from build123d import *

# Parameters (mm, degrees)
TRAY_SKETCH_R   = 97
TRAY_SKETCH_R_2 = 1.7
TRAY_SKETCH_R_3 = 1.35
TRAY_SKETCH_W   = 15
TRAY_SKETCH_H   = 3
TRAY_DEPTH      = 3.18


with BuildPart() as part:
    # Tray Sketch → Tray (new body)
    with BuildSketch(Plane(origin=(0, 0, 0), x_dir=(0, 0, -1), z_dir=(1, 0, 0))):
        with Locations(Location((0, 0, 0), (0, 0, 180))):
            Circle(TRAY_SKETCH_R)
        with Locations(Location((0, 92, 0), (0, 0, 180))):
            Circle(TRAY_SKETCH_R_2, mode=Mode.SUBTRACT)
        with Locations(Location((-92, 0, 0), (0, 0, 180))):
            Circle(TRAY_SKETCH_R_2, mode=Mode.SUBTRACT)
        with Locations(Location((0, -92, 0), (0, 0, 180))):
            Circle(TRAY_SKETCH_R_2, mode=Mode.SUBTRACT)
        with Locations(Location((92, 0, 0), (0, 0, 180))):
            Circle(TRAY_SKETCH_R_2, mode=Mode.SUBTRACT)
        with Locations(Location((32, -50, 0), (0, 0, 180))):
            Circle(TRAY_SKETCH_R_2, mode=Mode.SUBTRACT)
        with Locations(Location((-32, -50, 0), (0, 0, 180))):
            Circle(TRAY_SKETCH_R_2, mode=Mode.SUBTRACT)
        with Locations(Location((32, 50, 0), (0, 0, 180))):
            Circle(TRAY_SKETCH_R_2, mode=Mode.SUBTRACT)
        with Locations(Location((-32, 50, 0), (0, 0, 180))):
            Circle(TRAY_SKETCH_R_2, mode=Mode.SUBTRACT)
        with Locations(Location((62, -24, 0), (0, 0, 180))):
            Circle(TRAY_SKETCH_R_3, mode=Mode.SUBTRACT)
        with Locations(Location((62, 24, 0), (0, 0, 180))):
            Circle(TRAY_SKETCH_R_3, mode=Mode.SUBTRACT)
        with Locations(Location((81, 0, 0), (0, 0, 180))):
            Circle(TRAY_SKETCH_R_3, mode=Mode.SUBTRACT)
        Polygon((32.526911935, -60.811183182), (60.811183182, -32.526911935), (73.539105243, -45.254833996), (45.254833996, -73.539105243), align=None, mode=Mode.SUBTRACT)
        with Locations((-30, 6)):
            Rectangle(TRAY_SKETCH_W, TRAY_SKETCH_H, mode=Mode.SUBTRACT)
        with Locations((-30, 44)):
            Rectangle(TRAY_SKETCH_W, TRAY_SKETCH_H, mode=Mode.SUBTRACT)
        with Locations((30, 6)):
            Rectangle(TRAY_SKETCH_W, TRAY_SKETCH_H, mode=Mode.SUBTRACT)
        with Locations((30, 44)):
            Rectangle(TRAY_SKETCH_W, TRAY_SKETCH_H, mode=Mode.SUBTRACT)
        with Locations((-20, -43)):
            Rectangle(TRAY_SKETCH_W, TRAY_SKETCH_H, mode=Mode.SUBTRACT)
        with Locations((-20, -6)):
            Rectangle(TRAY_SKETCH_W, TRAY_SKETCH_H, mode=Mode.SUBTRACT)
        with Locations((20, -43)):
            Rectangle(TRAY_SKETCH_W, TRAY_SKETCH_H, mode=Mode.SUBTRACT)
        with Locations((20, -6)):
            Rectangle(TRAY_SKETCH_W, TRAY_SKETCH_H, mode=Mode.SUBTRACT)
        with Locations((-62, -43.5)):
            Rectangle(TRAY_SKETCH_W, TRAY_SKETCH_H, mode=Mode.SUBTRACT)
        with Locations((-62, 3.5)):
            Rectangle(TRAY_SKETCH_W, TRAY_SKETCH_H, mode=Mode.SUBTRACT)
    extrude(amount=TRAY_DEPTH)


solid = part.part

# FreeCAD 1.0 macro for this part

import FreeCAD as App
import Part
import Sketcher
Q = App.Units.Quantity

doc = App.newDocument("Part")
body = doc.addObject("PartDesign::Body", "Body")

# Sketch on YZ plane
sketch1 = body.newObject("Sketcher::SketchObject", "Sketch")
sketch1.AttachmentSupport = (doc.getObject("YZ_Plane"), [""])
sketch1.MapMode = "FlatFace"
sketch1.addGeometry([
    Part.Circle(App.Vector(0, 0, 0), App.Vector(0, 0, 1), 97),  # 0
    Part.Circle(App.Vector(50, -32, 0), App.Vector(0, 0, 1), 1.7),  # 1
    Part.Circle(App.Vector(24, -62, 0), App.Vector(0, 0, 1), 1.4),  # 2
    Part.Circle(App.Vector(0, -92, 0), App.Vector(0, 0, 1), 1.7),  # 3
    Part.Circle(App.Vector(0, -81, 0), App.Vector(0, 0, 1), 1.4),  # 4
    Part.LineSegment(App.Vector(42.5, -37.5, 0), App.Vector(42.5, -22.5, 0)),  # 5
    Part.LineSegment(App.Vector(42.5, -22.5, 0), App.Vector(45.5, -22.5, 0)),  # 6
    Part.LineSegment(App.Vector(45.5, -22.5, 0), App.Vector(45.5, -37.5, 0)),  # 7
    Part.LineSegment(App.Vector(45.5, -37.5, 0), App.Vector(42.5, -37.5, 0)),  # 8
    Part.LineSegment(App.Vector(4.5, -37.5, 0), App.Vector(4.5, -22.5, 0)),  # 9
    Part.LineSegment(App.Vector(4.5, -22.5, 0), App.Vector(7.5, -22.5, 0)),  # 10
    Part.LineSegment(App.Vector(7.5, -22.5, 0), App.Vector(7.5, -37.5, 0)),  # 11
    Part.LineSegment(App.Vector(7.5, -37.5, 0), App.Vector(4.5, -37.5, 0)),  # 12
    Part.Circle(App.Vector(92, 0, 0), App.Vector(0, 0, 1), 1.7),  # 13
    Part.Circle(App.Vector(50, 32, 0), App.Vector(0, 0, 1), 1.7),  # 14
    Part.LineSegment(App.Vector(42.5, 22.5, 0), App.Vector(42.5, 37.5, 0)),  # 15
    Part.LineSegment(App.Vector(42.5, 37.5, 0), App.Vector(45.5, 37.5, 0)),  # 16
    Part.LineSegment(App.Vector(45.5, 37.5, 0), App.Vector(45.5, 22.5, 0)),  # 17
    Part.LineSegment(App.Vector(45.5, 22.5, 0), App.Vector(42.5, 22.5, 0)),  # 18
    Part.LineSegment(App.Vector(4.5, 22.5, 0), App.Vector(4.5, 37.5, 0)),  # 19
    Part.LineSegment(App.Vector(4.5, 37.5, 0), App.Vector(7.5, 37.5, 0)),  # 20
    Part.LineSegment(App.Vector(7.5, 37.5, 0), App.Vector(7.5, 22.5, 0)),  # 21
    Part.LineSegment(App.Vector(7.5, 22.5, 0), App.Vector(4.5, 22.5, 0)),  # 22
    Part.LineSegment(App.Vector(2, 54.5, 0), App.Vector(2, 69.5, 0)),  # 23
    Part.LineSegment(App.Vector(2, 69.5, 0), App.Vector(5, 69.5, 0)),  # 24
    Part.LineSegment(App.Vector(5, 69.5, 0), App.Vector(5, 54.5, 0)),  # 25
    Part.LineSegment(App.Vector(5, 54.5, 0), App.Vector(2, 54.5, 0)),  # 26
    Part.Circle(App.Vector(-24, -62, 0), App.Vector(0, 0, 1), 1.4),  # 27
    Part.LineSegment(App.Vector(-7.5, -27.5, 0), App.Vector(-7.5, -12.5, 0)),  # 28
    Part.LineSegment(App.Vector(-7.5, -12.5, 0), App.Vector(-4.5, -12.5, 0)),  # 29
    Part.LineSegment(App.Vector(-4.5, -12.5, 0), App.Vector(-4.5, -27.5, 0)),  # 30
    Part.LineSegment(App.Vector(-4.5, -27.5, 0), App.Vector(-7.5, -27.5, 0)),  # 31
    Part.LineSegment(App.Vector(-44.5, -27.5, 0), App.Vector(-44.5, -12.5, 0)),  # 32
    Part.LineSegment(App.Vector(-44.5, -12.5, 0), App.Vector(-41.5, -12.5, 0)),  # 33
    Part.LineSegment(App.Vector(-41.5, -12.5, 0), App.Vector(-41.5, -27.5, 0)),  # 34
    Part.LineSegment(App.Vector(-41.5, -27.5, 0), App.Vector(-44.5, -27.5, 0)),  # 35
    Part.LineSegment(App.Vector(-73.5, -45.3, 0), App.Vector(-60.8, -32.5, 0)),  # 36
    Part.LineSegment(App.Vector(-60.8, -32.5, 0), App.Vector(-32.5, -60.8, 0)),  # 37
    Part.LineSegment(App.Vector(-32.5, -60.8, 0), App.Vector(-45.3, -73.5, 0)),  # 38
    Part.LineSegment(App.Vector(-45.3, -73.5, 0), App.Vector(-73.5, -45.3, 0)),  # 39
    Part.Circle(App.Vector(-50, -32, 0), App.Vector(0, 0, 1), 1.7),  # 40
    Part.LineSegment(App.Vector(-7.5, 12.5, 0), App.Vector(-7.5, 27.5, 0)),  # 41
    Part.LineSegment(App.Vector(-7.5, 27.5, 0), App.Vector(-4.5, 27.5, 0)),  # 42
    Part.LineSegment(App.Vector(-4.5, 27.5, 0), App.Vector(-4.5, 12.5, 0)),  # 43
    Part.LineSegment(App.Vector(-4.5, 12.5, 0), App.Vector(-7.5, 12.5, 0)),  # 44
    Part.LineSegment(App.Vector(-44.5, 12.5, 0), App.Vector(-44.5, 27.5, 0)),  # 45
    Part.LineSegment(App.Vector(-44.5, 27.5, 0), App.Vector(-41.5, 27.5, 0)),  # 46
    Part.LineSegment(App.Vector(-41.5, 27.5, 0), App.Vector(-41.5, 12.5, 0)),  # 47
    Part.LineSegment(App.Vector(-41.5, 12.5, 0), App.Vector(-44.5, 12.5, 0)),  # 48
    Part.Circle(App.Vector(0, 92, 0), App.Vector(0, 0, 1), 1.7),  # 49
    Part.LineSegment(App.Vector(-45, 54.5, 0), App.Vector(-45, 69.5, 0)),  # 50
    Part.LineSegment(App.Vector(-45, 69.5, 0), App.Vector(-42, 69.5, 0)),  # 51
    Part.LineSegment(App.Vector(-42, 69.5, 0), App.Vector(-42, 54.5, 0)),  # 52
    Part.LineSegment(App.Vector(-42, 54.5, 0), App.Vector(-45, 54.5, 0)),  # 53
    Part.Circle(App.Vector(-50, 32, 0), App.Vector(0, 0, 1), 1.7),  # 54
    Part.Circle(App.Vector(-92, 0, 0), App.Vector(0, 0, 1), 1.7),  # 55
], False)
sketch1.addConstraint([
    Sketcher.Constraint("Coincident", 5, 2, 6, 1),
    Sketcher.Constraint("Coincident", 6, 2, 7, 1),
    Sketcher.Constraint("Coincident", 7, 2, 8, 1),
    Sketcher.Constraint("Coincident", 8, 2, 5, 1),
    Sketcher.Constraint("Coincident", 9, 2, 10, 1),
    Sketcher.Constraint("Coincident", 10, 2, 11, 1),
    Sketcher.Constraint("Coincident", 11, 2, 12, 1),
    Sketcher.Constraint("Coincident", 12, 2, 9, 1),
    Sketcher.Constraint("Coincident", 15, 2, 16, 1),
    Sketcher.Constraint("Coincident", 16, 2, 17, 1),
    Sketcher.Constraint("Coincident", 17, 2, 18, 1),
    Sketcher.Constraint("Coincident", 18, 2, 15, 1),
    Sketcher.Constraint("Coincident", 19, 2, 20, 1),
    Sketcher.Constraint("Coincident", 20, 2, 21, 1),
    Sketcher.Constraint("Coincident", 21, 2, 22, 1),
    Sketcher.Constraint("Coincident", 22, 2, 19, 1),
    Sketcher.Constraint("Coincident", 23, 2, 24, 1),
    Sketcher.Constraint("Coincident", 24, 2, 25, 1),
    Sketcher.Constraint("Coincident", 25, 2, 26, 1),
    Sketcher.Constraint("Coincident", 26, 2, 23, 1),
    Sketcher.Constraint("Coincident", 28, 2, 29, 1),
    Sketcher.Constraint("Coincident", 29, 2, 30, 1),
    Sketcher.Constraint("Coincident", 30, 2, 31, 1),
    Sketcher.Constraint("Coincident", 31, 2, 28, 1),
    Sketcher.Constraint("Coincident", 32, 2, 33, 1),
    Sketcher.Constraint("Coincident", 33, 2, 34, 1),
    Sketcher.Constraint("Coincident", 34, 2, 35, 1),
    Sketcher.Constraint("Coincident", 35, 2, 32, 1),
    Sketcher.Constraint("Coincident", 36, 2, 37, 1),
    Sketcher.Constraint("Coincident", 37, 2, 38, 1),
    Sketcher.Constraint("Coincident", 38, 2, 39, 1),
    Sketcher.Constraint("Coincident", 39, 2, 36, 1),
    Sketcher.Constraint("Coincident", 41, 2, 42, 1),
    Sketcher.Constraint("Coincident", 42, 2, 43, 1),
    Sketcher.Constraint("Coincident", 43, 2, 44, 1),
    Sketcher.Constraint("Coincident", 44, 2, 41, 1),
    Sketcher.Constraint("Coincident", 45, 2, 46, 1),
    Sketcher.Constraint("Coincident", 46, 2, 47, 1),
    Sketcher.Constraint("Coincident", 47, 2, 48, 1),
    Sketcher.Constraint("Coincident", 48, 2, 45, 1),
    Sketcher.Constraint("Coincident", 50, 2, 51, 1),
    Sketcher.Constraint("Coincident", 51, 2, 52, 1),
    Sketcher.Constraint("Coincident", 52, 2, 53, 1),
    Sketcher.Constraint("Coincident", 53, 2, 50, 1),
    Sketcher.Constraint("Vertical", 5),
    Sketcher.Constraint("Horizontal", 6),
    Sketcher.Constraint("Vertical", 7),
    Sketcher.Constraint("Horizontal", 8),
    Sketcher.Constraint("Vertical", 9),
    Sketcher.Constraint("Horizontal", 10),
    Sketcher.Constraint("Vertical", 11),
    Sketcher.Constraint("Horizontal", 12),
    Sketcher.Constraint("Vertical", 15),
    Sketcher.Constraint("Horizontal", 16),
    Sketcher.Constraint("Vertical", 17),
    Sketcher.Constraint("Horizontal", 18),
    Sketcher.Constraint("Vertical", 19),
    Sketcher.Constraint("Horizontal", 20),
    Sketcher.Constraint("Vertical", 21),
    Sketcher.Constraint("Horizontal", 22),
    Sketcher.Constraint("Vertical", 23),
    Sketcher.Constraint("Horizontal", 24),
    Sketcher.Constraint("Vertical", 25),
    Sketcher.Constraint("Horizontal", 26),
    Sketcher.Constraint("Vertical", 28),
    Sketcher.Constraint("Horizontal", 29),
    Sketcher.Constraint("Vertical", 30),
    Sketcher.Constraint("Horizontal", 31),
    Sketcher.Constraint("Vertical", 32),
    Sketcher.Constraint("Horizontal", 33),
    Sketcher.Constraint("Vertical", 34),
    Sketcher.Constraint("Horizontal", 35),
    Sketcher.Constraint("Vertical", 41),
    Sketcher.Constraint("Horizontal", 42),
    Sketcher.Constraint("Vertical", 43),
    Sketcher.Constraint("Horizontal", 44),
    Sketcher.Constraint("Vertical", 45),
    Sketcher.Constraint("Horizontal", 46),
    Sketcher.Constraint("Vertical", 47),
    Sketcher.Constraint("Horizontal", 48),
    Sketcher.Constraint("Vertical", 50),
    Sketcher.Constraint("Horizontal", 51),
    Sketcher.Constraint("Vertical", 52),
    Sketcher.Constraint("Horizontal", 53),
    Sketcher.Constraint("Coincident", 0, 3, -1, 1),
    Sketcher.Constraint("Equal", 1, 3),
    Sketcher.Constraint("Equal", 2, 4),
    Sketcher.Constraint("Equal", 3, 13),
    Sketcher.Constraint("Equal", 13, 14),
    Sketcher.Constraint("Equal", 4, 27),
    Sketcher.Constraint("Equal", 14, 40),
    Sketcher.Constraint("Equal", 40, 49),
    Sketcher.Constraint("Equal", 49, 54),
    Sketcher.Constraint("Equal", 54, 55),
    Sketcher.Constraint("Symmetric", 14, 3, 40, 3, -1, 1),
    Sketcher.Constraint("Symmetric", 3, 3, 49, 3, -1, 1),
    Sketcher.Constraint("Symmetric", 1, 3, 54, 3, -1, 1),
    Sketcher.Constraint("Symmetric", 13, 3, 55, 3, -1, 1),
    Sketcher.Constraint("Symmetric", 2, 3, 27, 3, -2),
    Sketcher.Constraint("Symmetric", 1, 3, 40, 3, -2),
    Sketcher.Constraint("Symmetric", 8, 2, 15, 2, -1),
    Sketcher.Constraint("Symmetric", 6, 2, 17, 2, -1),
    Sketcher.Constraint("Symmetric", 12, 2, 19, 2, -1),
    Sketcher.Constraint("Symmetric", 10, 2, 21, 2, -1),
    Sketcher.Constraint("Symmetric", 31, 2, 41, 2, -1),
    Sketcher.Constraint("Symmetric", 29, 2, 43, 2, -1),
    Sketcher.Constraint("Symmetric", 35, 2, 45, 2, -1),
    Sketcher.Constraint("Symmetric", 33, 2, 47, 2, -1),
    Sketcher.Constraint("PointOnObject", 3, 3, -2),
    Sketcher.Constraint("PointOnObject", 4, 3, -2),
    Sketcher.Constraint("PointOnObject", 13, 3, -1),
    Sketcher.Constraint("Perpendicular", 36, 37),
    Sketcher.Constraint("Perpendicular", 37, 38),
    Sketcher.Constraint("Perpendicular", 38, 39),
    Sketcher.Constraint("Horizontal", 6, 2, 9, 2),
    Sketcher.Constraint("Horizontal", 8, 2, 11, 2),
    Sketcher.Constraint("Horizontal", 29, 2, 32, 2),
    Sketcher.Constraint("Horizontal", 31, 2, 34, 2),
    Sketcher.Constraint("Horizontal", 24, 2, 50, 2),
    Sketcher.Constraint("Horizontal", 26, 2, 52, 2),
    Sketcher.Constraint("Equal", 8, 10),
    Sketcher.Constraint("Equal", 22, 24),
    Sketcher.Constraint("Equal", 26, 29),
    Sketcher.Constraint("Equal", 31, 33),
    Sketcher.Constraint("Equal", 48, 51),
    Sketcher.Constraint("Equal", 21, 23),
    Sketcher.Constraint("Equal", 25, 28),
    Sketcher.Constraint("Diameter", 0, 194.0),
    Sketcher.Constraint("Diameter", 1, 3.4),
    Sketcher.Constraint("Diameter", 2, 2.7),
    Sketcher.Constraint("DistanceX", 6, 1, 6, 2, 3.0),
    Sketcher.Constraint("DistanceY", 5, 1, 5, 2, 15.0),
    Sketcher.Constraint("Angle", 36, Q("45 deg")),
    Sketcher.Constraint("Distance", 36, 18.0),
    Sketcher.Constraint("Distance", 37, 40.0),
    Sketcher.Constraint("DistanceX", -1, 1, 1, 3, 50.0),
    Sketcher.Constraint("DistanceY", 1, 3, -1, 1, 32.0),
    Sketcher.Constraint("DistanceX", -1, 1, 2, 3, 24.0),
    Sketcher.Constraint("DistanceY", 2, 3, -1, 1, 62.0),
    Sketcher.Constraint("DistanceY", 3, 3, -1, 1, 92.0),
    Sketcher.Constraint("DistanceY", 4, 3, -1, 1, 81.0),
    Sketcher.Constraint("DistanceX", -1, 1, 13, 3, 92.0),
    Sketcher.Constraint("DistanceX", -1, 1, 23, 2, 2.0),
    Sketcher.Constraint("DistanceX", 50, 2, -1, 1, 45.0),
    Sketcher.Constraint("DistanceX", 9, 2, 5, 2, 38.0),
    Sketcher.Constraint("DistanceY", 5, 2, 15, 2, 60.0),
    Sketcher.Constraint("DistanceY", 19, 2, 23, 2, 32.0),
    Sketcher.Constraint("DistanceX", 28, 2, 9, 2, 12.0),
    Sketcher.Constraint("DistanceY", 9, 2, 28, 2, 10.0),
    Sketcher.Constraint("DistanceX", 32, 2, 28, 2, 37.0),
    Sketcher.Constraint("DistanceX", -1, 1, 5, 2, 42.5),
    Sketcher.Constraint("DistanceY", 36, 2, -1, 1, 32.526912),
    Sketcher.Constraint("DistanceX", 37, 2, -1, 1, 32.526912),
])
pad1 = body.newObject("PartDesign::Pad", "Pad")
pad1.Profile = sketch1
pad1.Length = 3.18

doc.recompute()
